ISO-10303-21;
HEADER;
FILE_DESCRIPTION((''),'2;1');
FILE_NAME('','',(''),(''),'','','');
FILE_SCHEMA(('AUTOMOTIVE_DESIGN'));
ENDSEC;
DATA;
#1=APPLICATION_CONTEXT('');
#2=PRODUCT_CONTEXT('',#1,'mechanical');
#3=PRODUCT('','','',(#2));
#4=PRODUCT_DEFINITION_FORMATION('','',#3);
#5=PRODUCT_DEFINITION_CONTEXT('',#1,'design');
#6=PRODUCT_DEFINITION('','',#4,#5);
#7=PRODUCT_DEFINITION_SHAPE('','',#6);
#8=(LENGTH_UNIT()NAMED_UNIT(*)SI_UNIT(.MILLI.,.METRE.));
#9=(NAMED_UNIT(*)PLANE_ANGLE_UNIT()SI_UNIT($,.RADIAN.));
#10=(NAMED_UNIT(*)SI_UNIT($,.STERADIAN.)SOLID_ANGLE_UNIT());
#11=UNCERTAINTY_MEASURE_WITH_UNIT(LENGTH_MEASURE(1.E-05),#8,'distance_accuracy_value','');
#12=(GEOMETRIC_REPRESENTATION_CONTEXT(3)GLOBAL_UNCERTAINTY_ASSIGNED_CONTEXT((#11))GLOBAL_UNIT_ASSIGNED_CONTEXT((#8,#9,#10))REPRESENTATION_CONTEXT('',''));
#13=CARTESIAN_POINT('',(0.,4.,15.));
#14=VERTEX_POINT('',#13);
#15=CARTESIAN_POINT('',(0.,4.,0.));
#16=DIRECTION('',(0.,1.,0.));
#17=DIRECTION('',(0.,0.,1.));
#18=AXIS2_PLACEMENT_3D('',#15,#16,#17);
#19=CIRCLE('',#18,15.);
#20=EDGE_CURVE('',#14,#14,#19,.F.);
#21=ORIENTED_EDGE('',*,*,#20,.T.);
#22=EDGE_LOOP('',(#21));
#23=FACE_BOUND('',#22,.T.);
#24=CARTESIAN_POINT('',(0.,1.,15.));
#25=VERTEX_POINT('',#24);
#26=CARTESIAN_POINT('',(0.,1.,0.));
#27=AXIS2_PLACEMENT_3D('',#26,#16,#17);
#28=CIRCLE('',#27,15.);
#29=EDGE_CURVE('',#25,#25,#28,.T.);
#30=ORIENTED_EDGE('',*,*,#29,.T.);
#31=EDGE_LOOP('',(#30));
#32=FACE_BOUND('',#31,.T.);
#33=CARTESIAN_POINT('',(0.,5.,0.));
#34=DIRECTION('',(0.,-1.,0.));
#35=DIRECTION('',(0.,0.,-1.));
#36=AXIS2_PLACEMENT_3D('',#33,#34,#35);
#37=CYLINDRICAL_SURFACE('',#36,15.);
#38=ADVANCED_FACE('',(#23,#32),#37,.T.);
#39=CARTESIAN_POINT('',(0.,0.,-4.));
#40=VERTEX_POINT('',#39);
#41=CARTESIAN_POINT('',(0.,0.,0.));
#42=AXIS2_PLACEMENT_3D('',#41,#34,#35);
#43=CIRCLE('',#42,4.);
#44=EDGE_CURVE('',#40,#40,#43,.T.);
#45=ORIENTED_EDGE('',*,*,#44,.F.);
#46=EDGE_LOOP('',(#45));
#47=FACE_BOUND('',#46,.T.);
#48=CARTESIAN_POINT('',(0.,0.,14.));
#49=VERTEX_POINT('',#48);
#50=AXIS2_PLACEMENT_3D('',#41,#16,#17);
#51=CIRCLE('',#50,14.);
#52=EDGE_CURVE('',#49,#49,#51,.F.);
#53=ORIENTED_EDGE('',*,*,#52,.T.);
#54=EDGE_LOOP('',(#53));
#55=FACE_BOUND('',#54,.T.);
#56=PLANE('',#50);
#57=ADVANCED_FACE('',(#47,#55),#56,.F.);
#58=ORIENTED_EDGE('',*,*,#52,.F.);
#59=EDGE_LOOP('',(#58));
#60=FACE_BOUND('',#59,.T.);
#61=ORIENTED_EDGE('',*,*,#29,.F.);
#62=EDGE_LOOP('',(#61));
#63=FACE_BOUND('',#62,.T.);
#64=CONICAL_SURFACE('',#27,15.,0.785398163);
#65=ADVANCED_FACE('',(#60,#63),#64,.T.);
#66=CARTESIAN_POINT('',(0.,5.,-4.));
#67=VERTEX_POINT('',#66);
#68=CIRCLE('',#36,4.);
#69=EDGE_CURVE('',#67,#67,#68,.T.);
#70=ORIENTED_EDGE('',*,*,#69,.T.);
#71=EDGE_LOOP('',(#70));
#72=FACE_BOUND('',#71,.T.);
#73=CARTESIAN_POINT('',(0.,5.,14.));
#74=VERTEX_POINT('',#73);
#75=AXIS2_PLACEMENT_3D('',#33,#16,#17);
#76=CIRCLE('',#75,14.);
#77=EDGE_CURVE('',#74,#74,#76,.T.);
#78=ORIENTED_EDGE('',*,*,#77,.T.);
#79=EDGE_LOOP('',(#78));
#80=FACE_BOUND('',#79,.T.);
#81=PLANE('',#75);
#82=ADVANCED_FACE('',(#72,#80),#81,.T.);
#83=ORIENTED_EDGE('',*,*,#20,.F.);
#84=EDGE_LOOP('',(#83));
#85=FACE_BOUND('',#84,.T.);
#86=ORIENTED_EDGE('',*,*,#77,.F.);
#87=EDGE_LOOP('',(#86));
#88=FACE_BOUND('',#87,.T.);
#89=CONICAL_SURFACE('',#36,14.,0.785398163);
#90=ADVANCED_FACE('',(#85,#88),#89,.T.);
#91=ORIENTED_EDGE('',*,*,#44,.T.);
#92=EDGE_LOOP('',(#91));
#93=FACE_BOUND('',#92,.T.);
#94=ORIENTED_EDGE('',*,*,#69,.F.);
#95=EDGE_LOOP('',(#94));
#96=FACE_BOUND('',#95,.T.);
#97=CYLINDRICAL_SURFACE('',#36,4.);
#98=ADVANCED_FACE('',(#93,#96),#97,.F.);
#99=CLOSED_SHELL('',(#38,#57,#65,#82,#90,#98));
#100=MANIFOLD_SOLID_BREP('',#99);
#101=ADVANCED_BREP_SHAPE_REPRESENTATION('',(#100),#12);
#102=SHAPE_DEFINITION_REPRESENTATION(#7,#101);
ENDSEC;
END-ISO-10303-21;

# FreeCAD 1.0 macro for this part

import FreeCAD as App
import Part
import Sketcher

V = App.Vector
Q = App.Units.Quantity


def edges_at(feature, points):
    """Names of the edges that pass closest to the given points."""
    edges = feature.Shape.Edges
    near = lambda p: min(range(len(edges)), key=lambda i: edges[i].distToShape(Part.Vertex(*p))[0])
    return sorted({f"Edge{near(p) + 1}" for p in points})

doc = App.newDocument("Part")
body = doc.addObject("PartDesign::Body", "Body")

sketch1 = doc.addObject("Sketcher::SketchObject", "Sketch")
body.addObject(sketch1)
sketch1.AttachmentSupport = (doc.XZ_Plane, [""])
sketch1.MapMode = "FlatFace"
sketch1.addGeometry(Part.Circle(V(0, 0, 0), V(0, 0, 1), 15), False)
sketch1.addConstraint([
    Sketcher.Constraint("Coincident", 0, 3, -1, 1),
    Sketcher.Constraint("Diameter", 0, Q("30 mm")),
])
pad1 = doc.addObject("PartDesign::Pad", "Pad")
body.addObject(pad1)
pad1.Profile = sketch1
pad1.Length = 5
pad1.Reversed = True
doc.recompute()

chamfer = doc.addObject("PartDesign::Chamfer", "Chamfer")
body.addObject(chamfer)
chamfer.Base = (pad1, edges_at(pad1, [(0, 0, -15), (0, 5, -15)]))
chamfer.Size = 1

sketch2 = doc.addObject("Sketcher::SketchObject", "Sketch001")
body.addObject(sketch2)
sketch2.AttachmentSupport = (doc.XZ_Plane, [""])
sketch2.MapMode = "FlatFace"
sketch2.addGeometry(Part.Circle(V(0, 0, 0), V(0, 0, 1), 4), False)
sketch2.addConstraint([
    Sketcher.Constraint("Coincident", 0, 3, -1, 1),
    Sketcher.Constraint("Diameter", 0, Q("8 mm")),
])
pocket1 = doc.addObject("PartDesign::Pocket", "Pocket")
body.addObject(pocket1)
pocket1.Profile = sketch2
pocket1.Type = "ThroughAll"

doc.recompute()
